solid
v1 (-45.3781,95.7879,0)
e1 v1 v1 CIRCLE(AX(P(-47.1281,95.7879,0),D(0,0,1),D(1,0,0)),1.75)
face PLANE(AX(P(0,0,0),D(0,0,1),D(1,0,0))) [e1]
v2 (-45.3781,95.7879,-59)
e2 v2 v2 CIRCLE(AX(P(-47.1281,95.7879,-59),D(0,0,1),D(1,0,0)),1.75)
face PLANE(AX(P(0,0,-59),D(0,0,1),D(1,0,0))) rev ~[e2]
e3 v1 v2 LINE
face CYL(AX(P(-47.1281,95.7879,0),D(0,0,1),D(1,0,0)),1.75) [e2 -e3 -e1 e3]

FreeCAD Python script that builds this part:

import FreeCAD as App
import Part
import Sketcher

doc = App.newDocument("Part")
params = doc.addObject("Spreadsheet::Sheet", "Params")
for row, (alias, value) in enumerate([
    ("sketch1_diameter", "3.5 mm"),
    ("pad1_length", "59 mm"),
], start=1):
    params.set(f"A{row}", alias)
    params.set(f"B{row}", "=" + value)
    params.setAlias(f"B{row}", alias)

body = doc.addObject("PartDesign::Body", "Body")

sketch1 = body.newObject("Sketcher::SketchObject", "Sketch")
sketch1.AttachmentSupport = (doc.getObject("XY_Plane"), [""])
sketch1.MapMode = "FlatFace"
sketch1.addGeometry(Part.Circle(App.Vector(-47.1, 95.8, 0), App.Vector(0, 0, 1), 1.8), False)
sketch1.addConstraint([
    Sketcher.Constraint("Diameter", 0, 3.5),
    Sketcher.Constraint("DistanceX", 0, 3, -1, 1, 47.128),
    Sketcher.Constraint("DistanceY", -1, 1, 0, 3, 95.788),
])
sketch1.setExpression("Constraints[0]", "Params.sketch1_diameter")
pad1 = body.newObject("PartDesign::Pad", "Pad")
pad1.Profile = sketch1
pad1.setExpression("Length", "Params.pad1_length")
pad1.Reversed = True

doc.recompute()
